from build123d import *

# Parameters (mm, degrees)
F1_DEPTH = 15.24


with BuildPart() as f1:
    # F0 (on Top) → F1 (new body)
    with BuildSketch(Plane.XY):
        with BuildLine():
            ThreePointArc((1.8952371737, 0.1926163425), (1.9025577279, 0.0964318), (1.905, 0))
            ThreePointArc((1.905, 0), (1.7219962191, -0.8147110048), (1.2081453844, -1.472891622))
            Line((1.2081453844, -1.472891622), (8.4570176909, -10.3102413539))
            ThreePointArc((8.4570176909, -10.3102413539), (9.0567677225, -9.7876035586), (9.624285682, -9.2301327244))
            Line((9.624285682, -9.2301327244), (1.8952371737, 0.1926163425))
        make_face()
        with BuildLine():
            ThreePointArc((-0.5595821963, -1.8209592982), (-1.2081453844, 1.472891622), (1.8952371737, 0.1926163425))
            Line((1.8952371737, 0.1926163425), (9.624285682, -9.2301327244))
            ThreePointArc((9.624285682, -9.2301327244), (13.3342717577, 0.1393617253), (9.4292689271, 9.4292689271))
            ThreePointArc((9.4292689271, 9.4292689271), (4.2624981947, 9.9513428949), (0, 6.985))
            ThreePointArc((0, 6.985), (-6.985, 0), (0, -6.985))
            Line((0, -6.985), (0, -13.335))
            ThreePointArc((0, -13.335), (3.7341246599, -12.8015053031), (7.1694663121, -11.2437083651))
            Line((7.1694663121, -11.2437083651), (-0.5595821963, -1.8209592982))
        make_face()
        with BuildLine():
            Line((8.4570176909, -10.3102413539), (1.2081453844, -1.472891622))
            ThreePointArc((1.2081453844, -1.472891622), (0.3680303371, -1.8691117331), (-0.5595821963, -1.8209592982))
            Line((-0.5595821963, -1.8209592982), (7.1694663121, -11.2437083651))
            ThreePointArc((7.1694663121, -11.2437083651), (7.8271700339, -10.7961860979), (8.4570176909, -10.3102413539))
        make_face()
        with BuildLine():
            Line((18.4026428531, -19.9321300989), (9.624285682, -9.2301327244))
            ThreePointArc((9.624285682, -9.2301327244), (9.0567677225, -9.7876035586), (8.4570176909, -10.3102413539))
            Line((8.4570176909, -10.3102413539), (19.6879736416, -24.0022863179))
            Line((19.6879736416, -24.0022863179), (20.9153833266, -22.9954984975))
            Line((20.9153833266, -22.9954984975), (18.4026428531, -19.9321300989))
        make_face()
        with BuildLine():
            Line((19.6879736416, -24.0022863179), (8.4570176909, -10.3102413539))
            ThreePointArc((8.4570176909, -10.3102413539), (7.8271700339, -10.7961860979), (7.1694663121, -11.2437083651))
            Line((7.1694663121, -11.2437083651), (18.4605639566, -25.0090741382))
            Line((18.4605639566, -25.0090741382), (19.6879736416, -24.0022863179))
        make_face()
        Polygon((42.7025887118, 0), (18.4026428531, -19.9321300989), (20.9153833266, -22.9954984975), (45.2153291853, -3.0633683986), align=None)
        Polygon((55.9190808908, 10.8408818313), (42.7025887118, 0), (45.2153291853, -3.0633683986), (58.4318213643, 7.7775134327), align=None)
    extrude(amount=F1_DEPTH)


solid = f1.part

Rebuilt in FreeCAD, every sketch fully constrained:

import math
import FreeCAD as App
import Part
import Sketcher
from FreeCAD import Vector
Q = App.Units.Quantity

doc = App.newDocument("Part")
body = doc.addObject("PartDesign::Body", "Body")

sketch1 = doc.addObject("Sketcher::SketchObject", "Sketch")
body.addObject(sketch1)
sketch1.AttachmentSupport = (doc.XY_Plane, [""])
sketch1.MapMode = "FlatFace"
sketch1.addGeometry([
    Part.ArcOfCircle(Part.Circle(Vector(0, 0, 0), Vector(0, 0, 1), 13.34), math.radians(-44), math.radians(45)),
    Part.ArcOfCircle(Part.Circle(Vector(6.14, 2.71, 0), Vector(0, 0, 1), 7.48), math.radians(64), math.radians(145)),
    Part.ArcOfCircle(Part.Circle(Vector(0, 0, 0), Vector(0, 0, 1), 6.99), math.radians(90), math.radians(270)),
    Part.LineSegment(Vector(0, -6.99, 0), Vector(0, -13.34, 0)),
    Part.ArcOfCircle(Part.Circle(Vector(0, 0, 0), Vector(0, 0, 1), 13.33), math.radians(-90), math.radians(-57)),
    Part.LineSegment(Vector(7.17, -11.24, 0), Vector(18.46, -25.01, 0)),
    Part.LineSegment(Vector(18.46, -25.01, 0), Vector(19.69, -24, 0)),
    Part.LineSegment(Vector(19.69, -24, 0), Vector(20.92, -23, 0)),
    Part.LineSegment(Vector(20.92, -23, 0), Vector(45.22, -3.06, 0)),
    Part.LineSegment(Vector(45.22, -3.06, 0), Vector(58.43, 7.78, 0)),
    Part.LineSegment(Vector(58.43, 7.78, 0), Vector(55.92, 10.84, 0)),
    Part.LineSegment(Vector(55.92, 10.84, 0), Vector(42.7, 0, 0)),
    Part.LineSegment(Vector(42.7, 0, 0), Vector(18.4, -19.93, 0)),
    Part.LineSegment(Vector(18.4, -19.93, 0), Vector(9.62, -9.23, 0)),
    Part.ArcOfCircle(Part.Circle(Vector(0, 0, 0), Vector(0, 0, 1), 1.9), math.radians(0), math.radians(5.8)),
    Part.ArcOfCircle(Part.Circle(Vector(0, 0, 0), Vector(0, 0, 1), 1.91), math.radians(-51), math.radians(0)),
    Part.ArcOfCircle(Part.Circle(Vector(0, 0, 0), Vector(0, 0, 1), 1.91), math.radians(-107), math.radians(-51)),
    Part.ArcOfCircle(Part.Circle(Vector(0, 0, 0), Vector(0, 0, 1), 1.91), math.radians(6), math.radians(253)),
], False)
sketch1.addConstraint([
    Sketcher.Constraint("Coincident", 0, 2, 1, 1),
    Sketcher.Constraint("Coincident", 1, 2, 2, 1),
    Sketcher.Constraint("Coincident", 2, 2, 3, 1),
    Sketcher.Constraint("Coincident", 3, 2, 4, 1),
    Sketcher.Constraint("Coincident", 4, 2, 5, 1),
    Sketcher.Constraint("Coincident", 5, 2, 6, 1),
    Sketcher.Constraint("Coincident", 6, 2, 7, 1),
    Sketcher.Constraint("Coincident", 7, 2, 8, 1),
    Sketcher.Constraint("Coincident", 8, 2, 9, 1),
    Sketcher.Constraint("Coincident", 9, 2, 10, 1),
    Sketcher.Constraint("Coincident", 10, 2, 11, 1),
    Sketcher.Constraint("Coincident", 11, 2, 12, 1),
    Sketcher.Constraint("Coincident", 12, 2, 13, 1),
    Sketcher.Constraint("Coincident", 13, 2, 0, 1),
    Sketcher.Constraint("Tangent", 14, 1, 15, 2),
    Sketcher.Constraint("Tangent", 15, 1, 16, 2),
    Sketcher.Constraint("Tangent", 16, 1, 17, 2),
    Sketcher.Constraint("Tangent", 17, 1, 14, 2),
    Sketcher.Constraint("Vertical", 3),
    Sketcher.Constraint("Coincident", 0, 3, -1, 1),
    Sketcher.Constraint("Coincident", 2, 3, -1, 1),
    Sketcher.Constraint("Coincident", 4, 3, -1, 1),
    Sketcher.Constraint("Coincident", 14, 3, -1, 1),
    Sketcher.Constraint("Equal", 0, 4),
    Sketcher.Constraint("Equal", 14, 15),
    Sketcher.Constraint("PointOnObject", 1, 2, -2),
    Sketcher.Constraint("PointOnObject", 2, 2, -2),
    Sketcher.Constraint("PointOnObject", 11, 2, -1),
    Sketcher.Constraint("PointOnObject", 14, 1, -1),
    Sketcher.Constraint("Perpendicular", 5, 6),
    Sketcher.Constraint("Parallel", 6, 7),
    Sketcher.Constraint("Parallel", 7, 8),
    Sketcher.Constraint("Parallel", 8, 9),
    Sketcher.Constraint("Perpendicular", 9, 10),
    Sketcher.Constraint("Perpendicular", 10, 11),
    Sketcher.Constraint("Parallel", 11, 12),
    Sketcher.Constraint("Perpendicular", 12, 13),
    Sketcher.Constraint("Equal", 6, 7),
    Sketcher.Constraint("Equal", 9, 11),
    Sketcher.Constraint("Equal", 8, 12),
    Sketcher.Constraint("Radius", 0, Q("0.525 in")),
    Sketcher.Constraint("Radius", 2, Q("0.275 in")),
    Sketcher.Constraint("Radius", 14, Q("0.075 in")),
    Sketcher.Constraint("Distance", 6, Q("0.0625 in")),
    Sketcher.Constraint("Radius", 1, Q("7.483411 mm")),
    Sketcher.Constraint("DistanceX", 0, 2, 8, 2, Q("1.4089 in")),
    Sketcher.Constraint("DistanceY", 7, 2, -1, 1, Q("22.995498 mm")),
    Sketcher.Constraint("DistanceY", 6, 2, 9, 2, Q("31.7798 mm")),
    Sketcher.Constraint("Distance", 5, Q("17.803769 mm")),
    Sketcher.Constraint("Distance", 9, Q("17.09387 mm")),
    Sketcher.Constraint("Distance", 10, Q("3.962082 mm")),
    Sketcher.Constraint("DistanceY", 15, 1, -1, 1, Q("1.472892 mm")),
    Sketcher.Constraint("DistanceY", 16, 1, -1, 1, Q("1.820959 mm")),
    Sketcher.Constraint("DistanceX", 15, 1, 17, 1, Q("0.687092 mm")),
])
pad1 = doc.addObject("PartDesign::Pad", "Pad")
body.addObject(pad1)
pad1.Profile = sketch1
pad1.Length = Q("0.6 in")

doc.recompute()
